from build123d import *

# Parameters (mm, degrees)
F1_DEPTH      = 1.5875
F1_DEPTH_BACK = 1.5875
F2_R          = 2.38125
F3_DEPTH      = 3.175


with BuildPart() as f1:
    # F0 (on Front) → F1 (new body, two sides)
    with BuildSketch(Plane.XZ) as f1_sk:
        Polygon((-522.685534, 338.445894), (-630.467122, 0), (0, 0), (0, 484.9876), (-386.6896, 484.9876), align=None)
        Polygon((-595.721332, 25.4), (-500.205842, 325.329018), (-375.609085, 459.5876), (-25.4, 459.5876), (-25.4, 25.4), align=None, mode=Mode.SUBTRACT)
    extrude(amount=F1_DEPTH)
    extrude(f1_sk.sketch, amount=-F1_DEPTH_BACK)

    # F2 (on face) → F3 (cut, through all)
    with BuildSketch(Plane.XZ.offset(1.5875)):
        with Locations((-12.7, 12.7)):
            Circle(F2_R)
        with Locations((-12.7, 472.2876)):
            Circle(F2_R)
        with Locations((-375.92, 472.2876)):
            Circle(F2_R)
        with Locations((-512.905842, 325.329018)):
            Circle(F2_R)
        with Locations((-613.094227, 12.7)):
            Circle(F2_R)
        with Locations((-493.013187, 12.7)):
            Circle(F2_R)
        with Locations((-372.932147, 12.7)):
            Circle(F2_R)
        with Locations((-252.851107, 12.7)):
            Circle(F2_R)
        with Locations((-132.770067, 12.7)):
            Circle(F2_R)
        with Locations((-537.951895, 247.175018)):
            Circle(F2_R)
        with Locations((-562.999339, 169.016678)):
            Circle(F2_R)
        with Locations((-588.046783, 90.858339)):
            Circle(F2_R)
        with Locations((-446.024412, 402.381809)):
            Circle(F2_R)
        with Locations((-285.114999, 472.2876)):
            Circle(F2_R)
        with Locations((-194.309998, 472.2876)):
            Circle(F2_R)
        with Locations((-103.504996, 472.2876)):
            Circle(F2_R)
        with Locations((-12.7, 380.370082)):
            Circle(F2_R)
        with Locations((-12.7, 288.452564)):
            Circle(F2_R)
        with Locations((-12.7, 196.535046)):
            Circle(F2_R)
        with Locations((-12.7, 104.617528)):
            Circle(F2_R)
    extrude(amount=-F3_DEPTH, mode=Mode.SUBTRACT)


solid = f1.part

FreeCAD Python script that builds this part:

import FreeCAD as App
import Part
import Sketcher

V = App.Vector
Q = App.Units.Quantity


def add_polygon(sketch, points):
    """Adds a closed chain of lines whose ends are joined by coincident constraints."""
    first, n = sketch.GeometryCount, len(points)
    for a, b in zip(points, points[1:] + points[:1]):
        sketch.addGeometry(Part.LineSegment(App.Vector(*a, 0), App.Vector(*b, 0)), False)
    for i in range(n):
        sketch.addConstraint(Sketcher.Constraint("Coincident", first + i, 2, first + (i + 1) % n, 1))

doc = App.newDocument("Part")
body = doc.addObject("PartDesign::Body", "Body")

sketch1 = body.newObject("Sketcher::SketchObject", "Sketch")
sketch1.AttachmentSupport = (doc.getObject("XZ_Plane"), [""])
sketch1.MapMode = "FlatFace"
add_polygon(sketch1, [(-522.685534, 338.445894), (-630.467122, 0), (0, 0), (0, 484.9876), (-386.6896, 484.9876)])
add_polygon(sketch1, [(-25.4, 25.4), (-595.721332, 25.4), (-500.205842, 325.329018), (-375.609085, 459.5876), (-25.4, 459.5876)])
sketch1.addConstraint(Sketcher.Constraint("Horizontal", 1))
sketch1.addConstraint(Sketcher.Constraint("Vertical", 2))
sketch1.addConstraint(Sketcher.Constraint("Horizontal", 3))
sketch1.addConstraint(Sketcher.Constraint("Horizontal", 5))
sketch1.addConstraint(Sketcher.Constraint("Horizontal", 8))
sketch1.addConstraint(Sketcher.Constraint("Vertical", 9))
sketch1.addConstraint(Sketcher.Constraint("Coincident", 1, 2, -1, 1))
sketch1.addConstraint(Sketcher.Constraint("Parallel", 0, 6))
sketch1.addConstraint(Sketcher.Constraint("Parallel", 4, 7))
sketch1.addConstraint(Sketcher.Constraint("DistanceY", -1, 1, 5, 2, Q("1 in")))
sketch1.addConstraint(Sketcher.Constraint("DistanceX", 8, 2, -1, 1, Q("1 in")))
sketch1.addConstraint(Sketcher.Constraint("DistanceY", 7, 2, 3, 2, Q("1 in")))
sketch1.addConstraint(Sketcher.Constraint("DistanceX", 3, 2, 3, 1, Q("15.224 in")))
sketch1.addConstraint(Sketcher.Constraint("DistanceY", 2, 1, 2, 2, Q("19.094 in")))
sketch1.addConstraint(Sketcher.Constraint("Distance", 0, Q("13.984 in")))
sketch1.addConstraint(Sketcher.Constraint("Distance", 4, Q("7.871 in")))
sketch1.addConstraint(Sketcher.Constraint("DistanceX", 1, 1, 1, 2, 630.467122))
sketch1.addConstraint(Sketcher.Constraint("DistanceX", 5, 2, 5, 1, 570.321332))
sketch1.addConstraint(Sketcher.Constraint("Distance", 6, 314.770749))
pad1 = body.newObject("PartDesign::Pad", "Pad")
pad1.Profile = sketch1
pad1.Type = "TwoLengths"
pad1.Length = Q("0.0625 in")
pad1.Length2 = Q("0.0625 in")

sketch2 = body.newObject("Sketcher::SketchObject", "Sketch001")
sketch2.AttachmentSupport = (doc.getObject("XZ_Plane"), [""])
sketch2.MapMode = "FlatFace"
sketch2.AttachmentOffset = App.Placement(V(0, 0, 0.0625 * 25.4), App.Rotation())
sketch2.addGeometry(Part.Circle(V(-12.7, 12.7, 0), V(0, 0, 1), 2.38125), False)
sketch2.addGeometry(Part.Circle(V(-12.7, 472.2876, 0), V(0, 0, 1), 2.38125), False)
sketch2.addGeometry(Part.Circle(V(-375.92, 472.2876, 0), V(0, 0, 1), 2.38125), False)
sketch2.addGeometry(Part.Circle(V(-512.905842, 325.329018, 0), V(0, 0, 1), 2.38125), False)
sketch2.addGeometry(Part.Circle(V(-613.094227, 12.7, 0), V(0, 0, 1), 2.38125), False)
sketch2.addGeometry(Part.Circle(V(-493.013187, 12.7, 0), V(0, 0, 1), 2.38125), False)
sketch2.addGeometry(Part.Circle(V(-372.932147, 12.7, 0), V(0, 0, 1), 2.38125), False)
sketch2.addGeometry(Part.Circle(V(-252.851107, 12.7, 0), V(0, 0, 1), 2.38125), False)
sketch2.addGeometry(Part.Circle(V(-132.770067, 12.7, 0), V(0, 0, 1), 2.38125), False)
sketch2.addGeometry(Part.Circle(V(-537.951895, 247.175018, 0), V(0, 0, 1), 2.38125), False)
sketch2.addGeometry(Part.Circle(V(-562.999339, 169.016678, 0), V(0, 0, 1), 2.38125), False)
sketch2.addGeometry(Part.Circle(V(-588.046783, 90.858339, 0), V(0, 0, 1), 2.38125), False)
sketch2.addGeometry(Part.Circle(V(-446.024412, 402.381809, 0), V(0, 0, 1), 2.38125), False)
sketch2.addGeometry(Part.Circle(V(-285.114999, 472.2876, 0), V(0, 0, 1), 2.38125), False)
sketch2.addGeometry(Part.Circle(V(-194.309998, 472.2876, 0), V(0, 0, 1), 2.38125), False)
sketch2.addGeometry(Part.Circle(V(-103.504996, 472.2876, 0), V(0, 0, 1), 2.38125), False)
sketch2.addGeometry(Part.Circle(V(-12.7, 380.370082, 0), V(0, 0, 1), 2.38125), False)
sketch2.addGeometry(Part.Circle(V(-12.7, 288.452564, 0), V(0, 0, 1), 2.38125), False)
sketch2.addGeometry(Part.Circle(V(-12.7, 196.535046, 0), V(0, 0, 1), 2.38125), False)
sketch2.addGeometry(Part.Circle(V(-12.7, 104.617528, 0), V(0, 0, 1), 2.38125), False)
sketch2.addConstraint(Sketcher.Constraint("Equal", 0, 1))
sketch2.addConstraint(Sketcher.Constraint("Equal", 1, 2))
sketch2.addConstraint(Sketcher.Constraint("Equal", 2, 3))
sketch2.addConstraint(Sketcher.Constraint("Equal", 3, 4))
sketch2.addConstraint(Sketcher.Constraint("Equal", 4, 5))
sketch2.addConstraint(Sketcher.Constraint("Equal", 5, 6))
sketch2.addConstraint(Sketcher.Constraint("Equal", 6, 7))
sketch2.addConstraint(Sketcher.Constraint("Equal", 7, 8))
sketch2.addConstraint(Sketcher.Constraint("Equal", 8, 9))
sketch2.addConstraint(Sketcher.Constraint("Equal", 9, 10))
sketch2.addConstraint(Sketcher.Constraint("Equal", 10, 11))
sketch2.addConstraint(Sketcher.Constraint("Equal", 11, 12))
sketch2.addConstraint(Sketcher.Constraint("Equal", 12, 13))
sketch2.addConstraint(Sketcher.Constraint("Equal", 13, 14))
sketch2.addConstraint(Sketcher.Constraint("Equal", 14, 15))
sketch2.addConstraint(Sketcher.Constraint("Equal", 15, 16))
sketch2.addConstraint(Sketcher.Constraint("Equal", 16, 17))
sketch2.addConstraint(Sketcher.Constraint("Equal", 17, 18))
sketch2.addConstraint(Sketcher.Constraint("Equal", 18, 19))
sketch2.addConstraint(Sketcher.Constraint("Horizontal", 1, 3, 2, 3))
sketch2.addConstraint(Sketcher.Constraint("Horizontal", 0, 3, 4, 3))
sketch2.addConstraint(Sketcher.Constraint("Horizontal", 4, 3, 5, 3))
sketch2.addConstraint(Sketcher.Constraint("Horizontal", 5, 3, 6, 3))
sketch2.addConstraint(Sketcher.Constraint("Horizontal", 6, 3, 7, 3))
sketch2.addConstraint(Sketcher.Constraint("Horizontal", 7, 3, 8, 3))
sketch2.addConstraint(Sketcher.Constraint("Horizontal", 2, 3, 13, 3))
sketch2.addConstraint(Sketcher.Constraint("Horizontal", 13, 3, 14, 3))
sketch2.addConstraint(Sketcher.Constraint("Horizontal", 14, 3, 15, 3))
sketch2.addConstraint(Sketcher.Constraint("Vertical", 0, 3, 1, 3))
sketch2.addConstraint(Sketcher.Constraint("Vertical", 1, 3, 16, 3))
sketch2.addConstraint(Sketcher.Constraint("Vertical", 16, 3, 17, 3))
sketch2.addConstraint(Sketcher.Constraint("Vertical", 17, 3, 18, 3))
sketch2.addConstraint(Sketcher.Constraint("Vertical", 18, 3, 19, 3))
sketch2.addConstraint(Sketcher.Constraint("Diameter", 0, Q("0.1875 in")))
sketch2.addConstraint(Sketcher.Constraint("DistanceX", 0, 3, -1, 1, Q("0.5 in")))
sketch2.addConstraint(Sketcher.Constraint("DistanceY", -1, 1, 0, 3, Q("0.5 in")))
sketch2.addConstraint(Sketcher.Constraint("DistanceX", 2, 3, -1, 1, Q("14.8 in")))
sketch2.addConstraint(Sketcher.Constraint("DistanceX", 14, 3, -1, 1, Q("7.6499999 in")))
sketch2.addConstraint(Sketcher.Constraint("DistanceX", 13, 3, 15, 3, Q("7.1500001 in")))
sketch2.addConstraint(Sketcher.Constraint("DistanceY", -1, 1, 1, 3, Q("18.594 in")))
sketch2.addConstraint(Sketcher.Constraint("DistanceX", 13, 3, -1, 1, Q("11.225 in")))
sketch2.addConstraint(Sketcher.Constraint("DistanceY", -1, 1, 9, 3, Q("9.7312999 in")))
sketch2.addConstraint(Sketcher.Constraint("DistanceY", -1, 1, 10, 3, Q("6.6541999 in")))
sketch2.addConstraint(Sketcher.Constraint("DistanceY", -1, 1, 11, 3, Q("3.5771 in")))
sketch2.addConstraint(Sketcher.Constraint("DistanceY", -1, 1, 16, 3, Q("14.9752001 in")))
sketch2.addConstraint(Sketcher.Constraint("DistanceY", -1, 1, 17, 3, Q("11.3564002 in")))
sketch2.addConstraint(Sketcher.Constraint("DistanceX", 4, 3, 5, 3, Q("4.7276 in")))
sketch2.addConstraint(Sketcher.Constraint("DistanceX", 5, 3, 6, 3, Q("4.7276 in")))
sketch2.addConstraint(Sketcher.Constraint("DistanceX", 6, 3, 7, 3, Q("4.7276 in")))
sketch2.addConstraint(Sketcher.Constraint("DistanceX", 7, 3, 8, 3, Q("4.7276 in")))
sketch2.addConstraint(Sketcher.Constraint("DistanceY", 18, 3, 17, 3, Q("3.6187999 in")))
sketch2.addConstraint(Sketcher.Constraint("DistanceY", 19, 3, 18, 3, Q("3.6187999 in")))
sketch2.addConstraint(Sketcher.Constraint("DistanceY", 9, 3, 3, 3, 78.154))
sketch2.addConstraint(Sketcher.Constraint("DistanceX", 3, 3, -1, 1, 512.905842))
sketch2.addConstraint(Sketcher.Constraint("DistanceX", 10, 3, -1, 1, 562.999339))
sketch2.addConstraint(Sketcher.Constraint("DistanceX", 12, 3, -1, 1, 446.024412))
sketch2.addConstraint(Sketcher.Constraint("DistanceY", -1, 1, 12, 3, 402.381809))
sketch2.addConstraint(Sketcher.Constraint("DistanceX", 9, 3, 5, 3, 44.938708))
sketch2.addConstraint(Sketcher.Constraint("DistanceX", 4, 3, 10, 3, 50.094888))
sketch2.addConstraint(Sketcher.Constraint("DistanceX", 11, 3, 12, 3, 142.022371))
pocket1 = body.newObject("PartDesign::Pocket", "Pocket")
pocket1.Profile = sketch2
pocket1.Type = "ThroughAll"

doc.recompute()
